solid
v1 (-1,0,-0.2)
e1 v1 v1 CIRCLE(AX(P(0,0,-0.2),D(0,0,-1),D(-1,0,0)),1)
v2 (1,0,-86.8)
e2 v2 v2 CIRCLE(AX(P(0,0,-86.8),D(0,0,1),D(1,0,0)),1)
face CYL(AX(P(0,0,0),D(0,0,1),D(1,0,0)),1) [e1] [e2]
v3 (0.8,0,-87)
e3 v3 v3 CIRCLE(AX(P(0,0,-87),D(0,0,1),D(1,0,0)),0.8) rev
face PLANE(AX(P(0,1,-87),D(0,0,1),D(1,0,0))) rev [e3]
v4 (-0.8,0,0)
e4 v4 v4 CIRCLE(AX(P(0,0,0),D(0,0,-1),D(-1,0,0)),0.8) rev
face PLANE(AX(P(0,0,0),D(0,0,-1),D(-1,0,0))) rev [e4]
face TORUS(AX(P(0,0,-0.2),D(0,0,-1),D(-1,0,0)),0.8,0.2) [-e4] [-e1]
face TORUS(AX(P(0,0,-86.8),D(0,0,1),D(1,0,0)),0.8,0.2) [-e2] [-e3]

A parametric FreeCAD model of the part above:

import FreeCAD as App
import Part
import Sketcher

V = App.Vector
Q = App.Units.Quantity


def edges_at(feature, points):
    """Names of the edges that pass closest to the given points."""
    edges = feature.Shape.Edges
    near = lambda p: min(range(len(edges)), key=lambda i: edges[i].distToShape(Part.Vertex(*p))[0])
    return sorted({f"Edge{near(p) + 1}" for p in points})

doc = App.newDocument("Part")
body = doc.addObject("PartDesign::Body", "Body")

# Sketch on YZ plane
sketch1 = body.newObject("Sketcher::SketchObject", "Sketch")
sketch1.AttachmentSupport = (doc.getObject("YZ_Plane"), [""])
sketch1.MapMode = "FlatFace"
sketch1.addGeometry([
    Part.LineSegment(V(1, 0, 0), V(0, 0, 0)),
    Part.LineSegment(V(0, 0, 0), V(0, -87, 0)),
    Part.LineSegment(V(0, -87, 0), V(1, -87, 0)),
    Part.LineSegment(V(1, -87, 0), V(1, 0, 0)),
], False)
sketch1.addConstraint([
    Sketcher.Constraint("Coincident", 0, 2, 1, 1),
    Sketcher.Constraint("Coincident", 1, 2, 2, 1),
    Sketcher.Constraint("Coincident", 2, 2, 3, 1),
    Sketcher.Constraint("Coincident", 3, 2, 0, 1),
    Sketcher.Constraint("Horizontal", 0),
    Sketcher.Constraint("Vertical", 1),
    Sketcher.Constraint("Horizontal", 2),
    Sketcher.Constraint("Vertical", 3),
    Sketcher.Constraint("Coincident", 0, 2, -1, 1),
    Sketcher.Constraint("DistanceX", 0, 2, 0, 1, Q("1 mm")),
    Sketcher.Constraint("DistanceY", 1, 2, 1, 1, Q("87 mm")),
])
revolution = body.newObject("PartDesign::Revolution", "Revolution")
revolution.Profile = sketch1
revolution.ReferenceAxis = (sketch1, ["V_Axis"])
revolution.Angle = 360
doc.recompute()

fillet = body.newObject("PartDesign::Fillet", "Fillet")
fillet.Base = (revolution, edges_at(revolution, [(-1, 0, -87)]))
fillet.Radius = 0.2
doc.recompute()

fillet2 = body.newObject("PartDesign::Fillet", "Fillet001")
fillet2.Base = (fillet, edges_at(fillet, [(-1, 0, 0)]))
fillet2.Radius = 0.2

doc.recompute()
